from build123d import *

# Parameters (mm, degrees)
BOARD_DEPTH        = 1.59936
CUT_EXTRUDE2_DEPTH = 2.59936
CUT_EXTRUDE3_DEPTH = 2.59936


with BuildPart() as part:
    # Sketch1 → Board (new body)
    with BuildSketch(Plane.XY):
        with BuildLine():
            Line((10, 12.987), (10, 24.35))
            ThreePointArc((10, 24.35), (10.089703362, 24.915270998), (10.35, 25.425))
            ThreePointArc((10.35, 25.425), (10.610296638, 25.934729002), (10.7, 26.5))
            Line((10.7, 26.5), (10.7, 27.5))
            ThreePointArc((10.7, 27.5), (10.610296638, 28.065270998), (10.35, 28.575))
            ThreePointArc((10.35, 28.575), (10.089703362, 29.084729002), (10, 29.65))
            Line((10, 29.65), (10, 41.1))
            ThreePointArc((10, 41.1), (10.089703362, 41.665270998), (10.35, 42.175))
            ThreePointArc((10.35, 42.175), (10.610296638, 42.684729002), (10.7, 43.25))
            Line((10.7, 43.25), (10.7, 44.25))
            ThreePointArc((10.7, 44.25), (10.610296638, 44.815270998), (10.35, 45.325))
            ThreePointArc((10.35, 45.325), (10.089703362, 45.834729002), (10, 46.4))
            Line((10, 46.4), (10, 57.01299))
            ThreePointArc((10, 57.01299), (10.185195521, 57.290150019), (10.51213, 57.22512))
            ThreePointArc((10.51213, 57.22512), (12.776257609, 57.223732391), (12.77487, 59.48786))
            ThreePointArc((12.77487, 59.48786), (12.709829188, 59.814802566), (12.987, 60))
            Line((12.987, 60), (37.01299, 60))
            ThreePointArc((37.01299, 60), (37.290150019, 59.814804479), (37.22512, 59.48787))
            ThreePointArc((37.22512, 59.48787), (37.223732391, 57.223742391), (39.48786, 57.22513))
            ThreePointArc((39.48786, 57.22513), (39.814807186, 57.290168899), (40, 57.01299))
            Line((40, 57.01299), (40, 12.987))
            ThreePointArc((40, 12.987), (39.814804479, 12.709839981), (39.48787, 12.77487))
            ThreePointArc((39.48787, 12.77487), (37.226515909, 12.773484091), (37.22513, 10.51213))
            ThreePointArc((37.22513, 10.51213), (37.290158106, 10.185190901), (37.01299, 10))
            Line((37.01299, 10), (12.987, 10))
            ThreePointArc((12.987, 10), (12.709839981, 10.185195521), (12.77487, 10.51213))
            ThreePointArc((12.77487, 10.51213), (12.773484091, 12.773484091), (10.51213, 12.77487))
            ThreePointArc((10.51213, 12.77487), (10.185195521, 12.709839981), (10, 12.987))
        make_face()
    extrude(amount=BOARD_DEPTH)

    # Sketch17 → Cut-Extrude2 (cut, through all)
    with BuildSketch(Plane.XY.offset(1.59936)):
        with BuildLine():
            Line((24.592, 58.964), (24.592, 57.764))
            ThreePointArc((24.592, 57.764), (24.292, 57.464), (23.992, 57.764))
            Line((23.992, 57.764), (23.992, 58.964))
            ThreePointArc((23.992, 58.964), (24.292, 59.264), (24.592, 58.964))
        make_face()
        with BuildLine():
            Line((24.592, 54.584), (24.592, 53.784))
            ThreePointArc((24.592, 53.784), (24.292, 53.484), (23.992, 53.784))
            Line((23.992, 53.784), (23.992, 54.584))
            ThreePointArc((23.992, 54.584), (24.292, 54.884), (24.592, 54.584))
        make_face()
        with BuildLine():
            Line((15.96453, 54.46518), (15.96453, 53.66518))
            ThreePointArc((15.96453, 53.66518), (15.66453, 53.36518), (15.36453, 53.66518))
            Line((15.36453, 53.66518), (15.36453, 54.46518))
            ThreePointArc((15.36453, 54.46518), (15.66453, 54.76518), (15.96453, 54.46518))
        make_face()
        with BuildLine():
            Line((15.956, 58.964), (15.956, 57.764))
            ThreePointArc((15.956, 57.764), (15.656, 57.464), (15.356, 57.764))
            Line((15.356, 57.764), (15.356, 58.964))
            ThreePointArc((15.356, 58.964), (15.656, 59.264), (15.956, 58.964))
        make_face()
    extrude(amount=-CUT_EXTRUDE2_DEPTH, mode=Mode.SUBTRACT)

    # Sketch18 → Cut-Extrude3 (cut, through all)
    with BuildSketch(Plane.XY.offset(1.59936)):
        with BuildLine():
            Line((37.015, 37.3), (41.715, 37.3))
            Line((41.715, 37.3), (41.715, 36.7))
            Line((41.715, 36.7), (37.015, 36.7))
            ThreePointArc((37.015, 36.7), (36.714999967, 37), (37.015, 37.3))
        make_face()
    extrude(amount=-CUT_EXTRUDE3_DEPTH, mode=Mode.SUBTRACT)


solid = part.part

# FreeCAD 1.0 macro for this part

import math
import FreeCAD as App
import Part
import Sketcher
from FreeCAD import Vector
Q = App.Units.Quantity

doc = App.newDocument("Part")
params = doc.addObject("Spreadsheet::Sheet", "Params")
for row, (alias, value) in enumerate([
    ("sketch1_radius", "0.3 mm"),
    ("sketch1_radius2", "1.6 mm"),
    ("sketch1_height", "1 mm"),
    ("sketch1_height2", "11.45 mm"),
    ("pad1_length", "1.59936 mm"),
    ("sketch2_radius", "0.3 mm"),
    ("sketch2_height", "1.2 mm"),
    ("sketch2_height2", "0.8 mm"),
    ("sketch3_radius", "0.3 mm"),
    ("sketch3_width", "4.7 mm"),
], start=1):
    params.set(f"A{row}", alias)
    params.set(f"B{row}", "=" + value)
    params.setAlias(f"B{row}", alias)

body = doc.addObject("PartDesign::Body", "Body")

# Sketch on XY plane
sketch1 = body.newObject("Sketcher::SketchObject", "Sketch")
sketch1.AttachmentSupport = (doc.getObject("XY_Plane"), [""])
sketch1.MapMode = "FlatFace"
sketch1.addGeometry(Part.LineSegment(Vector(10, 24.35, 0), Vector(10, 12.987, 0)), False)
sketch1.addGeometry(Part.ArcOfCircle(Part.Circle(Vector(10.3, 12.987004, 0), Vector(0, 0, 1), 0.3), math.radians(-179.999223), math.radians(-45.00055)), False)
sketch1.addGeometry(Part.ArcOfCircle(Part.Circle(Vector(11.642113, 11.642113, 0), Vector(0, 0, 1), 1.6), math.radians(-44.929771), math.radians(134.929771)), False)
sketch1.addGeometry(Part.ArcOfCircle(Part.Circle(Vector(12.987004, 10.3, 0), Vector(0, 0, 1), 0.3), math.radians(135.00055), math.radians(269.999223)), False)
sketch1.addGeometry(Part.LineSegment(Vector(12.987, 10, 0), Vector(37.01299, 10, 0)), False)
sketch1.addGeometry(Part.ArcOfCircle(Part.Circle(Vector(37.012996, 10.3, 0), Vector(0, 0, 1), 0.3), math.radians(-90.001133), math.radians(44.999451)), False)
sketch1.addGeometry(Part.ArcOfCircle(Part.Circle(Vector(38.357887, 11.642113, 0), Vector(0, 0, 1), 1.6), math.radians(45.070229), math.radians(224.929771)), False)
sketch1.addGeometry(Part.ArcOfCircle(Part.Circle(Vector(39.7, 12.987004, 0), Vector(0, 0, 1), 0.3), math.radians(-134.99945), math.radians(-0.000777)), False)
sketch1.addGeometry(Part.LineSegment(Vector(40, 12.987, 0), Vector(40, 57.01299, 0)), False)
sketch1.addGeometry(Part.ArcOfCircle(Part.Circle(Vector(39.7, 57.013006, 0), Vector(0, 0, 1), 0.3), math.radians(-0.003043), math.radians(135.002152)), False)
sketch1.addGeometry(Part.ArcOfCircle(Part.Circle(Vector(38.355103, 58.355113, 0), Vector(0, 0, 1), 1.6), math.radians(134.929771), math.radians(315.070229)), False)
sketch1.addGeometry(Part.ArcOfCircle(Part.Circle(Vector(37.012986, 59.7, 0), Vector(0, 0, 1), 0.3), math.radians(-44.99945), math.radians(89.999223)), False)
sketch1.addGeometry(Part.LineSegment(Vector(37.01299, 60, 0), Vector(12.987, 60, 0)), False)
sketch1.addGeometry(Part.ArcOfCircle(Part.Circle(Vector(12.986994, 59.7, 0), Vector(0, 0, 1), 0.3), math.radians(89.998867), math.radians(225.002152)), False)
sketch1.addGeometry(Part.ArcOfCircle(Part.Circle(Vector(11.644887, 58.355103, 0), Vector(0, 0, 1), 1.6), math.radians(-135.070229), math.radians(45.070229)), False)
sketch1.addGeometry(Part.ArcOfCircle(Part.Circle(Vector(10.3, 57.012986, 0), Vector(0, 0, 1), 0.3), math.radians(45.00055), math.radians(179.999223)), False)
sketch1.addGeometry(Part.LineSegment(Vector(10, 57.01299, 0), Vector(10, 46.4, 0)), False)
sketch1.addGeometry(Part.ArcOfCircle(Part.Circle(Vector(11.82589, 46.399999, 0), Vector(0, 0, 1), 1.82589), math.radians(179.999971), math.radians(216.0686)), False)
sketch1.addGeometry(Part.ArcOfCircle(Part.Circle(Vector(8.87411, 44.250001, 0), Vector(0, 0, 1), 1.82589), math.radians(-0.000029), math.radians(36.0686)), False)
sketch1.addGeometry(Part.LineSegment(Vector(10.7, 44.25, 0), Vector(10.7, 43.25, 0)), False)
sketch1.addGeometry(Part.ArcOfCircle(Part.Circle(Vector(8.87411, 43.249999, 0), Vector(0, 0, 1), 1.82589), math.radians(-36.0686), math.radians(0.000029)), False)
sketch1.addGeometry(Part.ArcOfCircle(Part.Circle(Vector(11.82589, 41.100001, 0), Vector(0, 0, 1), 1.82589), math.radians(143.9314), math.radians(180.000029)), False)
sketch1.addGeometry(Part.LineSegment(Vector(10, 41.1, 0), Vector(10, 29.65, 0)), False)
sketch1.addGeometry(Part.ArcOfCircle(Part.Circle(Vector(11.82589, 29.649999, 0), Vector(0, 0, 1), 1.82589), math.radians(179.999971), math.radians(216.0686)), False)
sketch1.addGeometry(Part.ArcOfCircle(Part.Circle(Vector(8.87411, 27.500001, 0), Vector(0, 0, 1), 1.82589), math.radians(-0.000029), math.radians(36.0686)), False)
sketch1.addGeometry(Part.LineSegment(Vector(10.7, 27.5, 0), Vector(10.7, 26.5, 0)), False)
sketch1.addGeometry(Part.ArcOfCircle(Part.Circle(Vector(8.87411, 26.499999, 0), Vector(0, 0, 1), 1.82589), math.radians(-36.0686), math.radians(0.000029)), False)
sketch1.addGeometry(Part.ArcOfCircle(Part.Circle(Vector(11.82589, 24.350001, 0), Vector(0, 0, 1), 1.82589), math.radians(143.9314), math.radians(180.000029)), False)
sketch1.addConstraint(Sketcher.Constraint("Coincident", 0, 2, 1, 1))
sketch1.addConstraint(Sketcher.Constraint("Coincident", 1, 2, 2, 2))
sketch1.addConstraint(Sketcher.Constraint("Coincident", 2, 1, 3, 1))
sketch1.addConstraint(Sketcher.Constraint("Coincident", 3, 2, 4, 1))
sketch1.addConstraint(Sketcher.Constraint("Coincident", 4, 2, 5, 1))
sketch1.addConstraint(Sketcher.Constraint("Coincident", 5, 2, 6, 2))
sketch1.addConstraint(Sketcher.Constraint("Coincident", 6, 1, 7, 1))
sketch1.addConstraint(Sketcher.Constraint("Coincident", 7, 2, 8, 1))
sketch1.addConstraint(Sketcher.Constraint("Coincident", 8, 2, 9, 1))
sketch1.addConstraint(Sketcher.Constraint("Coincident", 9, 2, 10, 2))
sketch1.addConstraint(Sketcher.Constraint("Coincident", 10, 1, 11, 1))
sketch1.addConstraint(Sketcher.Constraint("Coincident", 11, 2, 12, 1))
sketch1.addConstraint(Sketcher.Constraint("Coincident", 12, 2, 13, 1))
sketch1.addConstraint(Sketcher.Constraint("Coincident", 13, 2, 14, 2))
sketch1.addConstraint(Sketcher.Constraint("Coincident", 14, 1, 15, 1))
sketch1.addConstraint(Sketcher.Constraint("Coincident", 15, 2, 16, 1))
sketch1.addConstraint(Sketcher.Constraint("Tangent", 16, 2, 17, 1))
sketch1.addConstraint(Sketcher.Constraint("Tangent", 17, 2, 18, 2))
sketch1.addConstraint(Sketcher.Constraint("Tangent", 18, 1, 19, 1))
sketch1.addConstraint(Sketcher.Constraint("Tangent", 19, 2, 20, 2))
sketch1.addConstraint(Sketcher.Constraint("Tangent", 20, 1, 21, 1))
sketch1.addConstraint(Sketcher.Constraint("Tangent", 21, 2, 22, 1))
sketch1.addConstraint(Sketcher.Constraint("Tangent", 22, 2, 23, 1))
sketch1.addConstraint(Sketcher.Constraint("Tangent", 23, 2, 24, 2))
sketch1.addConstraint(Sketcher.Constraint("Tangent", 24, 1, 25, 1))
sketch1.addConstraint(Sketcher.Constraint("Tangent", 25, 2, 26, 2))
sketch1.addConstraint(Sketcher.Constraint("Tangent", 26, 1, 27, 1))
sketch1.addConstraint(Sketcher.Constraint("Tangent", 27, 2, 0, 1))
sketch1.addConstraint(Sketcher.Constraint("Vertical", 0))
sketch1.addConstraint(Sketcher.Constraint("Horizontal", 4))
sketch1.addConstraint(Sketcher.Constraint("Vertical", 8))
sketch1.addConstraint(Sketcher.Constraint("Horizontal", 12))
sketch1.addConstraint(Sketcher.Constraint("Vertical", 16))
sketch1.addConstraint(Sketcher.Constraint("Vertical", 19))
sketch1.addConstraint(Sketcher.Constraint("Vertical", 22))
sketch1.addConstraint(Sketcher.Constraint("Vertical", 25))
sketch1.addConstraint(Sketcher.Constraint("Equal", 1, 3))
sketch1.addConstraint(Sketcher.Constraint("Equal", 3, 5))
sketch1.addConstraint(Sketcher.Constraint("Equal", 2, 6))
sketch1.addConstraint(Sketcher.Constraint("Equal", 5, 7))
sketch1.addConstraint(Sketcher.Constraint("Equal", 7, 9))
sketch1.addConstraint(Sketcher.Constraint("Equal", 6, 10))
sketch1.addConstraint(Sketcher.Constraint("Equal", 9, 11))
sketch1.addConstraint(Sketcher.Constraint("Equal", 11, 13))
sketch1.addConstraint(Sketcher.Constraint("Equal", 10, 14))
sketch1.addConstraint(Sketcher.Constraint("Equal", 13, 15))
sketch1.addConstraint(Sketcher.Constraint("Equal", 17, 18))
sketch1.addConstraint(Sketcher.Constraint("Equal", 18, 20))
sketch1.addConstraint(Sketcher.Constraint("Equal", 20, 21))
sketch1.addConstraint(Sketcher.Constraint("Equal", 21, 23))
sketch1.addConstraint(Sketcher.Constraint("Equal", 23, 24))
sketch1.addConstraint(Sketcher.Constraint("Equal", 24, 26))
sketch1.addConstraint(Sketcher.Constraint("Equal", 26, 27))
sketch1.addConstraint(Sketcher.Constraint("Horizontal", 2, 3, 6, 3))
sketch1.addConstraint(Sketcher.Constraint("Horizontal", 1, 3, 7, 3))
sketch1.addConstraint(Sketcher.Constraint("Horizontal", 2, 1, 5, 2))
sketch1.addConstraint(Sketcher.Constraint("Horizontal", 1, 2, 6, 1))
sketch1.addConstraint(Sketcher.Constraint("Horizontal", 0, 2, 7, 2))
sketch1.addConstraint(Sketcher.Constraint("Horizontal", 8, 2, 15, 2))
sketch1.addConstraint(Sketcher.Constraint("Vertical", 1, 3, 15, 3))
sketch1.addConstraint(Sketcher.Constraint("Vertical", 17, 3, 21, 3))
sketch1.addConstraint(Sketcher.Constraint("Vertical", 20, 3, 24, 3))
sketch1.addConstraint(Sketcher.Constraint("Vertical", 4, 2, 11, 2))
sketch1.addConstraint(Sketcher.Constraint("Vertical", 3, 2, 12, 2))
sketch1.addConstraint(Sketcher.Constraint("Vertical", 2, 1, 13, 2))
sketch1.addConstraint(Sketcher.Constraint("Vertical", 1, 2, 14, 1))
sketch1.addConstraint(Sketcher.Constraint("Equal", 19, 25))
sketch1.addConstraint(Sketcher.Constraint("Radius", 1, Q("0.3 mm")))
sketch1.addConstraint(Sketcher.Constraint("Radius", 2, Q("1.6 mm")))
sketch1.addConstraint(Sketcher.Constraint("DistanceY", 19, 2, 19, 1, Q("1 mm")))
sketch1.addConstraint(Sketcher.Constraint("DistanceX", -1, 1, 0, 2, Q("10 mm")))
sketch1.addConstraint(Sketcher.Constraint("DistanceY", -1, 1, 3, 2, Q("10 mm")))
sketch1.addConstraint(Sketcher.Constraint("DistanceX", -1, 1, 7, 2, Q("40 mm")))
sketch1.addConstraint(Sketcher.Constraint("DistanceY", -1, 1, 11, 2, Q("60 mm")))
sketch1.addConstraint(Sketcher.Constraint("DistanceY", 22, 2, 22, 1, Q("11.45 mm")))
sketch1.addConstraint(Sketcher.Constraint("DistanceY", -1, 1, 17, 3, Q("46.399999 mm")))
sketch1.addConstraint(Sketcher.Constraint("DistanceY", -1, 1, 21, 3, Q("41.100001 mm")))
sketch1.addConstraint(Sketcher.Constraint("DistanceX", -1, 1, 18, 1, Q("10.7 mm")))
sketch1.addConstraint(Sketcher.Constraint("DistanceY", 0, 2, 0, 1, Q("11.363 mm")))
sketch1.addConstraint(Sketcher.Constraint("DistanceX", -1, 1, 3, 2, Q("12.987 mm")))
sketch1.addConstraint(Sketcher.Constraint("DistanceY", 7, 3, 9, 3, Q("44.026002 mm")))
sketch1.addConstraint(Sketcher.Constraint("DistanceY", 6, 3, 10, 3, Q("46.713 mm")))
sketch1.addConstraint(Sketcher.Constraint("DistanceX", 4, 1, 4, 2, Q("24.02599 mm")))
sketch1.addConstraint(Sketcher.Constraint("DistanceY", 8, 1, 8, 2, Q("44.02599 mm")))
sketch1.addConstraint(Sketcher.Constraint("DistanceX", 11, 3, 6, 3, Q("1.344901 mm")))
sketch1.addConstraint(Sketcher.Constraint("DistanceX", 14, 3, 11, 3, Q("25.368099 mm")))
sketch1.addConstraint(Sketcher.Constraint("DistanceY", 1, 3, 14, 3, Q("45.368099 mm")))
sketch1.addConstraint(Sketcher.Constraint("DistanceX", -1, 1, 1, 2, Q("10.51213 mm")))
sketch1.addConstraint(Sketcher.Constraint("DistanceY", -1, 1, 1, 2, Q("12.77487 mm")))
sketch1.addConstraint(Sketcher.Constraint("DistanceX", -1, 1, 2, 1, Q("12.77487 mm")))
sketch1.addConstraint(Sketcher.Constraint("DistanceX", -1, 1, 9, 2, Q("39.48786 mm")))
sketch1.addConstraint(Sketcher.Constraint("DistanceX", -1, 1, 10, 1, Q("37.22512 mm")))
sketch1.setExpression("Constraints[67]", "Params.sketch1_radius")
sketch1.setExpression("Constraints[68]", "Params.sketch1_radius2")
sketch1.setExpression("Constraints[69]", "Params.sketch1_height")
sketch1.setExpression("Constraints[74]", "Params.sketch1_height2")
pad1 = body.newObject("PartDesign::Pad", "Pad")
pad1.Profile = sketch1
pad1.setExpression("Length", "Params.pad1_length")

# Sketch on XY plane
sketch2 = body.newObject("Sketcher::SketchObject", "Sketch001")
sketch2.AttachmentSupport = (doc.getObject("XY_Plane"), [""])
sketch2.MapMode = "FlatFace"
sketch2.AttachmentOffset = App.Placement(Vector(0, 0, 1.59936), App.Rotation())
sketch2.addGeometry(Part.LineSegment(Vector(24.592, 57.764, 0), Vector(24.592, 58.964, 0)), False)
sketch2.addGeometry(Part.ArcOfCircle(Part.Circle(Vector(24.292, 58.964, 0), Vector(0, 0, 1), 0.3), math.radians(0), math.radians(180)), False)
sketch2.addGeometry(Part.LineSegment(Vector(23.992, 58.964, 0), Vector(23.992, 57.764, 0)), False)
sketch2.addGeometry(Part.ArcOfCircle(Part.Circle(Vector(24.292, 57.764, 0), Vector(0, 0, 1), 0.3), math.radians(180), math.radians(360)), False)
sketch2.addGeometry(Part.LineSegment(Vector(24.592, 53.784, 0), Vector(24.592, 54.584, 0)), False)
sketch2.addGeometry(Part.ArcOfCircle(Part.Circle(Vector(24.292, 54.584, 0), Vector(0, 0, 1), 0.3), math.radians(0), math.radians(180)), False)
sketch2.addGeometry(Part.LineSegment(Vector(23.992, 54.584, 0), Vector(23.992, 53.784, 0)), False)
sketch2.addGeometry(Part.ArcOfCircle(Part.Circle(Vector(24.292, 53.784, 0), Vector(0, 0, 1), 0.3), math.radians(180), math.radians(360)), False)
sketch2.addGeometry(Part.LineSegment(Vector(15.96453, 53.66518, 0), Vector(15.96453, 54.46518, 0)), False)
sketch2.addGeometry(Part.ArcOfCircle(Part.Circle(Vector(15.66453, 54.46518, 0), Vector(0, 0, 1), 0.3), math.radians(0), math.radians(180)), False)
sketch2.addGeometry(Part.LineSegment(Vector(15.36453, 54.46518, 0), Vector(15.36453, 53.66518, 0)), False)
sketch2.addGeometry(Part.ArcOfCircle(Part.Circle(Vector(15.66453, 53.66518, 0), Vector(0, 0, 1), 0.3), math.radians(180), math.radians(360)), False)
sketch2.addGeometry(Part.LineSegment(Vector(15.956, 57.764, 0), Vector(15.956, 58.964, 0)), False)
sketch2.addGeometry(Part.ArcOfCircle(Part.Circle(Vector(15.656, 58.964, 0), Vector(0, 0, 1), 0.3), math.radians(0), math.radians(180)), False)
sketch2.addGeometry(Part.LineSegment(Vector(15.356, 58.964, 0), Vector(15.356, 57.764, 0)), False)
sketch2.addGeometry(Part.ArcOfCircle(Part.Circle(Vector(15.656, 57.764, 0), Vector(0, 0, 1), 0.3), math.radians(180), math.radians(360)), False)
sketch2.addConstraint(Sketcher.Constraint("Tangent", 0, 2, 1, 1))
sketch2.addConstraint(Sketcher.Constraint("Tangent", 1, 2, 2, 1))
sketch2.addConstraint(Sketcher.Constraint("Tangent", 2, 2, 3, 1))
sketch2.addConstraint(Sketcher.Constraint("Tangent", 3, 2, 0, 1))
sketch2.addConstraint(Sketcher.Constraint("Tangent", 4, 2, 5, 1))
sketch2.addConstraint(Sketcher.Constraint("Tangent", 5, 2, 6, 1))
sketch2.addConstraint(Sketcher.Constraint("Tangent", 6, 2, 7, 1))
sketch2.addConstraint(Sketcher.Constraint("Tangent", 7, 2, 4, 1))
sketch2.addConstraint(Sketcher.Constraint("Tangent", 8, 2, 9, 1))
sketch2.addConstraint(Sketcher.Constraint("Tangent", 9, 2, 10, 1))
sketch2.addConstraint(Sketcher.Constraint("Tangent", 10, 2, 11, 1))
sketch2.addConstraint(Sketcher.Constraint("Tangent", 11, 2, 8, 1))
sketch2.addConstraint(Sketcher.Constraint("Tangent", 12, 2, 13, 1))
sketch2.addConstraint(Sketcher.Constraint("Tangent", 13, 2, 14, 1))
sketch2.addConstraint(Sketcher.Constraint("Tangent", 14, 2, 15, 1))
sketch2.addConstraint(Sketcher.Constraint("Tangent", 15, 2, 12, 1))
sketch2.addConstraint(Sketcher.Constraint("Vertical", 0))
sketch2.addConstraint(Sketcher.Constraint("Vertical", 2))
sketch2.addConstraint(Sketcher.Constraint("Vertical", 4))
sketch2.addConstraint(Sketcher.Constraint("Vertical", 6))
sketch2.addConstraint(Sketcher.Constraint("Vertical", 8))
sketch2.addConstraint(Sketcher.Constraint("Vertical", 10))
sketch2.addConstraint(Sketcher.Constraint("Vertical", 12))
sketch2.addConstraint(Sketcher.Constraint("Vertical", 14))
sketch2.addConstraint(Sketcher.Constraint("Equal", 3, 5))
sketch2.addConstraint(Sketcher.Constraint("Equal", 7, 9))
sketch2.addConstraint(Sketcher.Constraint("Equal", 11, 13))
sketch2.addConstraint(Sketcher.Constraint("Horizontal", 1, 3, 13, 3))
sketch2.addConstraint(Sketcher.Constraint("Horizontal", 3, 3, 15, 3))
sketch2.addConstraint(Sketcher.Constraint("Vertical", 3, 3, 5, 3))
sketch2.addConstraint(Sketcher.Constraint("Equal", 6, 8))
sketch2.addConstraint(Sketcher.Constraint("Radius", 1, Q("0.3 mm")))
sketch2.addConstraint(Sketcher.Constraint("DistanceY", 0, 1, 0, 2, Q("1.2 mm")))
sketch2.addConstraint(Sketcher.Constraint("DistanceY", 4, 1, 4, 2, Q("0.8 mm")))
sketch2.addConstraint(Sketcher.Constraint("DistanceY", 5, 3, 3, 3, Q("3.18 mm")))
sketch2.addConstraint(Sketcher.Constraint("DistanceX", -1, 1, 1, 3, Q("24.292 mm")))
sketch2.addConstraint(Sketcher.Constraint("DistanceY", -1, 1, 1, 3, Q("58.964 mm")))
sketch2.addConstraint(Sketcher.Constraint("DistanceX", -1, 1, 13, 3, Q("15.656 mm")))
sketch2.addConstraint(Sketcher.Constraint("DistanceX", -1, 1, 9, 3, Q("15.66453 mm")))
sketch2.addConstraint(Sketcher.Constraint("DistanceY", -1, 1, 9, 3, Q("54.46518 mm")))
sketch2.setExpression("Constraints[31]", "Params.sketch2_radius")
sketch2.setExpression("Constraints[32]", "Params.sketch2_height")
sketch2.setExpression("Constraints[33]", "Params.sketch2_height2")
pocket1 = body.newObject("PartDesign::Pocket", "Pocket")
pocket1.Profile = sketch2
pocket1.Type = "ThroughAll"

# Sketch on XY plane
sketch3 = body.newObject("Sketcher::SketchObject", "Sketch002")
sketch3.AttachmentSupport = (doc.getObject("XY_Plane"), [""])
sketch3.MapMode = "FlatFace"
sketch3.AttachmentOffset = App.Placement(Vector(0, 0, 1.59936), App.Rotation())
sketch3.addGeometry(Part.LineSegment(Vector(41.715, 37.3, 0), Vector(37.015, 37.3, 0)), False)
sketch3.addGeometry(Part.ArcOfCircle(Part.Circle(Vector(37.015, 37, 0), Vector(0, 0, 1), 0.3), math.radians(89.999994), math.radians(270.000006)), False)
sketch3.addGeometry(Part.LineSegment(Vector(37.015, 36.7, 0), Vector(41.715, 36.7, 0)), False)
sketch3.addGeometry(Part.LineSegment(Vector(41.715, 36.7, 0), Vector(41.715, 37.3, 0)), False)
sketch3.addConstraint(Sketcher.Constraint("Tangent", 0, 2, 1, 1))
sketch3.addConstraint(Sketcher.Constraint("Tangent", 1, 2, 2, 1))
sketch3.addConstraint(Sketcher.Constraint("Coincident", 2, 2, 3, 1))
sketch3.addConstraint(Sketcher.Constraint("Coincident", 3, 2, 0, 1))
sketch3.addConstraint(Sketcher.Constraint("Horizontal", 0))
sketch3.addConstraint(Sketcher.Constraint("Horizontal", 2))
sketch3.addConstraint(Sketcher.Constraint("Vertical", 3))
sketch3.addConstraint(Sketcher.Constraint("Radius", 1, Q("0.3 mm")))
sketch3.addConstraint(Sketcher.Constraint("DistanceX", 0, 2, 0, 1, Q("4.7 mm")))
sketch3.addConstraint(Sketcher.Constraint("DistanceY", -1, 1, 1, 3, Q("37 mm")))
sketch3.addConstraint(Sketcher.Constraint("DistanceX", -1, 1, 1, 3, Q("37.015 mm")))
sketch3.setExpression("Constraints[7]", "Params.sketch3_radius")
sketch3.setExpression("Constraints[8]", "Params.sketch3_width")
pocket2 = body.newObject("PartDesign::Pocket", "Pocket001")
pocket2.Profile = sketch3
pocket2.Type = "ThroughAll"

doc.recompute()
